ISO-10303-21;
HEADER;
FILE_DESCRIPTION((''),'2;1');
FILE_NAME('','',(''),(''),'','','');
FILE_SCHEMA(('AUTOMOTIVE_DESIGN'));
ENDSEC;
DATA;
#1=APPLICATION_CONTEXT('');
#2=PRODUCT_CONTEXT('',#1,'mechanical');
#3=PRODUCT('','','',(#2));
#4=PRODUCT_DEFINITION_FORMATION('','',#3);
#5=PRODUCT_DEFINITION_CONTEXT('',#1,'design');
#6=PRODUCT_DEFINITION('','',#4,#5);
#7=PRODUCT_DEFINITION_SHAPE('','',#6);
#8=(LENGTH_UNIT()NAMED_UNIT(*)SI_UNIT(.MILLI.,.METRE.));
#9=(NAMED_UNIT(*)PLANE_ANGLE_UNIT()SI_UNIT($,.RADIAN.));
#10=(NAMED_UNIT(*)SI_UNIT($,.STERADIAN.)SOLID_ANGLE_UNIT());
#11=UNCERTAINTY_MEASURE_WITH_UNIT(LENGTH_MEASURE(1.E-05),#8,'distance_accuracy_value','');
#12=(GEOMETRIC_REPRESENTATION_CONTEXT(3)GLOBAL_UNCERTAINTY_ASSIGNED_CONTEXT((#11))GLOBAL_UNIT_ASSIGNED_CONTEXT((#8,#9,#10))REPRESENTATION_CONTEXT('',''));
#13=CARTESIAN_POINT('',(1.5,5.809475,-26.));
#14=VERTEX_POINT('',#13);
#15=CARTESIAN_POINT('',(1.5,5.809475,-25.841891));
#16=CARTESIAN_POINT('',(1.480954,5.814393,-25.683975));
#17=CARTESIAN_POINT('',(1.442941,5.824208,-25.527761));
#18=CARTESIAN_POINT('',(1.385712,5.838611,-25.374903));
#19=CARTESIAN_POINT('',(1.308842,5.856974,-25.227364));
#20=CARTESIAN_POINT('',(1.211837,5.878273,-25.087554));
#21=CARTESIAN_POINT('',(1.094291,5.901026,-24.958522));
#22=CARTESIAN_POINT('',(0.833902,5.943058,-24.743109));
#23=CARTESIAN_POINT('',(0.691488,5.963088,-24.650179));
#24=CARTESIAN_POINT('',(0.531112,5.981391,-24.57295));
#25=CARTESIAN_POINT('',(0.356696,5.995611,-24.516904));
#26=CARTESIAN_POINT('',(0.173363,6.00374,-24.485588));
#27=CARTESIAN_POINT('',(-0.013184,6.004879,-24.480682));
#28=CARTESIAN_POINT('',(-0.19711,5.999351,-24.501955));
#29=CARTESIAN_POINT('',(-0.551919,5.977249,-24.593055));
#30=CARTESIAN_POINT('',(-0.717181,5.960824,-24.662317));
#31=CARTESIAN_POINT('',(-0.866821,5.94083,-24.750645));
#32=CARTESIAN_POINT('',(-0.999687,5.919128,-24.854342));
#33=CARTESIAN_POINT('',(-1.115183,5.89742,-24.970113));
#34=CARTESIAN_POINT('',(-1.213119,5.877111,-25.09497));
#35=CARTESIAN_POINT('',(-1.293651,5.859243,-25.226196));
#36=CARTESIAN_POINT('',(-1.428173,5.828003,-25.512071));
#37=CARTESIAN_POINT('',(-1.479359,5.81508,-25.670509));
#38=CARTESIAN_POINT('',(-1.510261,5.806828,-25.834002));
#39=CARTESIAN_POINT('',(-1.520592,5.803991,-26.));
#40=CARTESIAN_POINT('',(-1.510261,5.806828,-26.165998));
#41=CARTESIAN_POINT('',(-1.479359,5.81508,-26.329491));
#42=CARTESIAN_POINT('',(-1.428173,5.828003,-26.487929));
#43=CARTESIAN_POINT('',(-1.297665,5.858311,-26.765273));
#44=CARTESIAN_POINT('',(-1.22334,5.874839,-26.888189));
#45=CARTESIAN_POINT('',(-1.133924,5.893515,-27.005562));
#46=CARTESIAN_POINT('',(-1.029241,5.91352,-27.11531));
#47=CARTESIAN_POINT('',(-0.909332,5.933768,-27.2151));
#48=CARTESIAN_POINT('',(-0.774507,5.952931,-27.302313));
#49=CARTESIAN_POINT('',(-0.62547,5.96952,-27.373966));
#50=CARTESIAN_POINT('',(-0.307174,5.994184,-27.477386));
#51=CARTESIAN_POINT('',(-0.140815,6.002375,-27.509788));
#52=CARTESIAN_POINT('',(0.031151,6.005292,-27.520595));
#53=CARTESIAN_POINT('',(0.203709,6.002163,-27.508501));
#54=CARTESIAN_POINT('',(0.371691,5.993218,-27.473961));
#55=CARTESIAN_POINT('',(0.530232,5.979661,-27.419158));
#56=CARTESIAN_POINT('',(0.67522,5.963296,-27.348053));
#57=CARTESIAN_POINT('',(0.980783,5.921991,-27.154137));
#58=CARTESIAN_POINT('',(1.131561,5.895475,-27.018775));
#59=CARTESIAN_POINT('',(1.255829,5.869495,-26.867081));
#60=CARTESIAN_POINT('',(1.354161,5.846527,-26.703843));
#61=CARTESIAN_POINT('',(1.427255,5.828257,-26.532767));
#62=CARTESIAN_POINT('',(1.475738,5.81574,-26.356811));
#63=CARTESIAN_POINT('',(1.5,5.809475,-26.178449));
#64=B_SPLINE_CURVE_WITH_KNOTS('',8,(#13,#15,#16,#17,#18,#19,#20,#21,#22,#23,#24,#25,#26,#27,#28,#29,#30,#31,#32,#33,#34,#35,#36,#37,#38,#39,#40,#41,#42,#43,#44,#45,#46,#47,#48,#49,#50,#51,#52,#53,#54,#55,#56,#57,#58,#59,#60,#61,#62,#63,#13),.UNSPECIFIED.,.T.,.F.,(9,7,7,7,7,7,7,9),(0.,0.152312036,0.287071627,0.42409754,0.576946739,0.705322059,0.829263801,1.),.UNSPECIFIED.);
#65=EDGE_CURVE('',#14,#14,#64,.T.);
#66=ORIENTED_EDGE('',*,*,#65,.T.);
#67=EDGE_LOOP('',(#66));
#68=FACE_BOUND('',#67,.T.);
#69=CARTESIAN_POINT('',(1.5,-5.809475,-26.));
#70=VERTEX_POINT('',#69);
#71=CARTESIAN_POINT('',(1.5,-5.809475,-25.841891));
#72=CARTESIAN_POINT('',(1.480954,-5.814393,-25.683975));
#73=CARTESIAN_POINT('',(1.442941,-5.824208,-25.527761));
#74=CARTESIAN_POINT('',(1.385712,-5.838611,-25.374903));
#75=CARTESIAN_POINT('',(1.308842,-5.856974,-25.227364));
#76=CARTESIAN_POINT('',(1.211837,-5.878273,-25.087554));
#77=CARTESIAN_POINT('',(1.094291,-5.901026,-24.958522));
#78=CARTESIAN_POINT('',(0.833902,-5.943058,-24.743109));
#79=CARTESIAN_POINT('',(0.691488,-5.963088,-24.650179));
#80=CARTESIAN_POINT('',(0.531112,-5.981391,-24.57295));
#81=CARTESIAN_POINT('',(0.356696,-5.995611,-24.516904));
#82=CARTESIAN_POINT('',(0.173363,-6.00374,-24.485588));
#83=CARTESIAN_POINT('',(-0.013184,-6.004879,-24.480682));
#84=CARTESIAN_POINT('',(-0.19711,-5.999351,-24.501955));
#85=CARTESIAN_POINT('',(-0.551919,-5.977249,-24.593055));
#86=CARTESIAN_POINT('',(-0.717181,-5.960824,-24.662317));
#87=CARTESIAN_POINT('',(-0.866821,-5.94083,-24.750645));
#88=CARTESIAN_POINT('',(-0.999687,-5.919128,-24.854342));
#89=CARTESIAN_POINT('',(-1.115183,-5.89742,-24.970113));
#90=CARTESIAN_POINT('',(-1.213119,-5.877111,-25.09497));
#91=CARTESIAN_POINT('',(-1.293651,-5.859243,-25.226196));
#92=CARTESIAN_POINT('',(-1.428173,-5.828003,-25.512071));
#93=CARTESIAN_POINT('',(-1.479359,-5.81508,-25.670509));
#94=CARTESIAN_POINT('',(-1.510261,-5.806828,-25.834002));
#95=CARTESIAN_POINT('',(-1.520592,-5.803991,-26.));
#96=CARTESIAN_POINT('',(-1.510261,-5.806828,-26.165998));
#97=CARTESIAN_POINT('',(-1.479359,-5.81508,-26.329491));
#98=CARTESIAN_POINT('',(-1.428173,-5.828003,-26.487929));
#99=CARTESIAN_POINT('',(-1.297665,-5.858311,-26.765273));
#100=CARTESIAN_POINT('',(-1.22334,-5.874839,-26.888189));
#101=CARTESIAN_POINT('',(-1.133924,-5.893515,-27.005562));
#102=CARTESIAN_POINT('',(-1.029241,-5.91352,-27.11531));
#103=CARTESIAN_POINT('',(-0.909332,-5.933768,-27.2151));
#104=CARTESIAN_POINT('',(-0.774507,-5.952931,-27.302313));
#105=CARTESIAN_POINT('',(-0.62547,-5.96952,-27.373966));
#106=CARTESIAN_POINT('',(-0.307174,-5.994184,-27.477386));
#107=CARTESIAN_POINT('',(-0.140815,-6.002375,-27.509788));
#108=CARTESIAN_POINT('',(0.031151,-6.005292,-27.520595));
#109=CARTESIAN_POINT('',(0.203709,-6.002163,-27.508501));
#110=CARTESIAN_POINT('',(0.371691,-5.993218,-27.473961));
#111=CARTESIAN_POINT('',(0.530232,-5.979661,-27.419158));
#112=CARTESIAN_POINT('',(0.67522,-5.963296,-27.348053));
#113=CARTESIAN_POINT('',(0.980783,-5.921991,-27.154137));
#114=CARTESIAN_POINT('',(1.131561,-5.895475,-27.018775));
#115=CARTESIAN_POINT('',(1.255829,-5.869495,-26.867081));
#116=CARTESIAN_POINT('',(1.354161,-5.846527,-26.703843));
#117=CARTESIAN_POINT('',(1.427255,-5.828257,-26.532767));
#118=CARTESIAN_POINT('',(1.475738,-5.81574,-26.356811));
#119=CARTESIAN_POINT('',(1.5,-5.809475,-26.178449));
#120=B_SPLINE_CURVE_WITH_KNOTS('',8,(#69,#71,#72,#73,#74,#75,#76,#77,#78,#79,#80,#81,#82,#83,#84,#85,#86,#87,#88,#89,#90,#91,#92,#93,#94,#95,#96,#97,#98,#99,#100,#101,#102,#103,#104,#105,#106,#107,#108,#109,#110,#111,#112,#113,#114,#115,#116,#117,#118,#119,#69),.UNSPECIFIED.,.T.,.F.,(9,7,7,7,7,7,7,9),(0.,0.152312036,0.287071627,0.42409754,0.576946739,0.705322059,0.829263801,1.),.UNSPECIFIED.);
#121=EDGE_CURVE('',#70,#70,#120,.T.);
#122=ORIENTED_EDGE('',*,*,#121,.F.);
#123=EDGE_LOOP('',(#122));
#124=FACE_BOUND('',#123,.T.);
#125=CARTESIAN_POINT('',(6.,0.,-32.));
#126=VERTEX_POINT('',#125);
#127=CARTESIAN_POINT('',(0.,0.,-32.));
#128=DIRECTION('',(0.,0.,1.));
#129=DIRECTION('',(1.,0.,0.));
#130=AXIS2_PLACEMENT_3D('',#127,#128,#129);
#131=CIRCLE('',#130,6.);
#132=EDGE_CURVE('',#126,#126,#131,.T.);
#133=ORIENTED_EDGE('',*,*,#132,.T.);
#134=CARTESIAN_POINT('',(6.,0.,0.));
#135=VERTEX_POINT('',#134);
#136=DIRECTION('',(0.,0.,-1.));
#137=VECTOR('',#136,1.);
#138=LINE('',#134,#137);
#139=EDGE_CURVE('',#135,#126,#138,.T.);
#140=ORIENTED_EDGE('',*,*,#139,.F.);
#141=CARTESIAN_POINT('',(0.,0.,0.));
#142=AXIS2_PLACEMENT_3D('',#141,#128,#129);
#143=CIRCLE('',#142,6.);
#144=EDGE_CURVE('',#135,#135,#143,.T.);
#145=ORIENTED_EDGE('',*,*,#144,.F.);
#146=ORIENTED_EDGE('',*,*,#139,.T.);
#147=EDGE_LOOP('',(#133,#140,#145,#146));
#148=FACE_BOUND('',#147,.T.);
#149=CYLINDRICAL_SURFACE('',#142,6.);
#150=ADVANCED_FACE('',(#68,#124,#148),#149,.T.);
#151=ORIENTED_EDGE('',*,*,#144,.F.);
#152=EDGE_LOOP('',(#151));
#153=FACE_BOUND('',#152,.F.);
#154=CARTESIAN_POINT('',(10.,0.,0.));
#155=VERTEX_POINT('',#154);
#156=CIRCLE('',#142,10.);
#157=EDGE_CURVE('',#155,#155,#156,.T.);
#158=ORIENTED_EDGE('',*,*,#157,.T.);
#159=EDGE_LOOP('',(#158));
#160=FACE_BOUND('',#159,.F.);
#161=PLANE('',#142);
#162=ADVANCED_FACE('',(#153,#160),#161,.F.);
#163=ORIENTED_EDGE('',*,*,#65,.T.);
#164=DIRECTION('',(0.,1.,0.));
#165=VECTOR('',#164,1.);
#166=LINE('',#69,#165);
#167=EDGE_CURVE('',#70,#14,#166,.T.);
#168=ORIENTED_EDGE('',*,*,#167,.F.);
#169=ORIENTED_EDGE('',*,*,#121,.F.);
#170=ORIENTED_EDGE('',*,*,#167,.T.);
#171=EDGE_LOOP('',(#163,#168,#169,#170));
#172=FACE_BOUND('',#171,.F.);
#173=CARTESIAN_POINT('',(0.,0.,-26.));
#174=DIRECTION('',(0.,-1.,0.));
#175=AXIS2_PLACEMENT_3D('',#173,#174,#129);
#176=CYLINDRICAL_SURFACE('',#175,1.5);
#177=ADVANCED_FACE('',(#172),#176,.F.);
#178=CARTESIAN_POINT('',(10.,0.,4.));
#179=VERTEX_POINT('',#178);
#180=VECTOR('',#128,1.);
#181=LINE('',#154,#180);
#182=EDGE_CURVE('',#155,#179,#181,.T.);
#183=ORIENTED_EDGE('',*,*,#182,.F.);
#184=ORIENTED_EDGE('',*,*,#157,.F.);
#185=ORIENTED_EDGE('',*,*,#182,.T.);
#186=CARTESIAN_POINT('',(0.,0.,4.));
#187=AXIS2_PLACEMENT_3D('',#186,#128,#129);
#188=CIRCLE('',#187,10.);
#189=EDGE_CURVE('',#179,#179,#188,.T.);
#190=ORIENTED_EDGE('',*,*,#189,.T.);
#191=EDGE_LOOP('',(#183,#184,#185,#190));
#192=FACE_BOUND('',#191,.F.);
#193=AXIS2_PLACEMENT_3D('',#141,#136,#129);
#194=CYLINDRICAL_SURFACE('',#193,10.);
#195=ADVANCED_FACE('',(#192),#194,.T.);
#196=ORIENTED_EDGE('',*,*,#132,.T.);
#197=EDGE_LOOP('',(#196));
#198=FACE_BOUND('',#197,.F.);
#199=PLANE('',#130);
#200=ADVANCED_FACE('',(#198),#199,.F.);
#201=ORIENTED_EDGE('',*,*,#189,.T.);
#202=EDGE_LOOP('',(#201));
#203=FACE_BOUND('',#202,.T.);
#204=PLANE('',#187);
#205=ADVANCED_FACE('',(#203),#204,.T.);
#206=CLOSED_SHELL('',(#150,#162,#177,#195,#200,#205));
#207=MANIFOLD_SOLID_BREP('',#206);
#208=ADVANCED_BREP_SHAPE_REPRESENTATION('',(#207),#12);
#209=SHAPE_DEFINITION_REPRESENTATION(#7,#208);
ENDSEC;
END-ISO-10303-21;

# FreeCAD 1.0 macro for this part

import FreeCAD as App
import Part
import Sketcher
from FreeCAD import Vector

doc = App.newDocument("Part")
body = doc.addObject("PartDesign::Body", "Body")

sketch1 = doc.addObject("Sketcher::SketchObject", "Sketch")
body.addObject(sketch1)
sketch1.AttachmentSupport = (doc.XY_Plane, [""])
sketch1.MapMode = "FlatFace"
sketch1.addGeometry(Part.Circle(Vector(0, 0, 0), Vector(0, 0, 1), 10), False)
sketch1.addConstraint(Sketcher.Constraint("Coincident", 0, 3, -1, 1))
sketch1.addConstraint(Sketcher.Constraint("Diameter", 0, 20.0))
pad1 = doc.addObject("PartDesign::Pad", "Pad")
body.addObject(pad1)
pad1.Profile = sketch1
pad1.Length = 4

sketch2 = doc.addObject("Sketcher::SketchObject", "Sketch001")
body.addObject(sketch2)
sketch2.AttachmentSupport = (doc.XY_Plane, [""])
sketch2.MapMode = "FlatFace"
sketch2.addGeometry(Part.Circle(Vector(0, 0, 0), Vector(0, 0, 1), 6), False)
sketch2.addConstraint(Sketcher.Constraint("Coincident", 0, 3, -1, 1))
sketch2.addConstraint(Sketcher.Constraint("Diameter", 0, 12.0))
pad2 = doc.addObject("PartDesign::Pad", "Pad001")
body.addObject(pad2)
pad2.Profile = sketch2
pad2.Length = 32
pad2.Reversed = True

sketch3 = doc.addObject("Sketcher::SketchObject", "Sketch002")
body.addObject(sketch3)
sketch3.AttachmentSupport = (doc.XZ_Plane, [""])
sketch3.MapMode = "FlatFace"
sketch3.addGeometry(Part.Circle(Vector(0, -26, 0), Vector(0, 0, 1), 1.5), False)
sketch3.addConstraint(Sketcher.Constraint("PointOnObject", 0, 3, -2))
sketch3.addConstraint(Sketcher.Constraint("Diameter", 0, 3.0))
sketch3.addConstraint(Sketcher.Constraint("DistanceY", 0, 3, -1, 1, 26.0))
pocket1 = doc.addObject("PartDesign::Pocket", "Pocket")
body.addObject(pocket1)
pocket1.Profile = sketch3
pocket1.Length = 639.6165
pocket1.Midplane = True

doc.recompute()
